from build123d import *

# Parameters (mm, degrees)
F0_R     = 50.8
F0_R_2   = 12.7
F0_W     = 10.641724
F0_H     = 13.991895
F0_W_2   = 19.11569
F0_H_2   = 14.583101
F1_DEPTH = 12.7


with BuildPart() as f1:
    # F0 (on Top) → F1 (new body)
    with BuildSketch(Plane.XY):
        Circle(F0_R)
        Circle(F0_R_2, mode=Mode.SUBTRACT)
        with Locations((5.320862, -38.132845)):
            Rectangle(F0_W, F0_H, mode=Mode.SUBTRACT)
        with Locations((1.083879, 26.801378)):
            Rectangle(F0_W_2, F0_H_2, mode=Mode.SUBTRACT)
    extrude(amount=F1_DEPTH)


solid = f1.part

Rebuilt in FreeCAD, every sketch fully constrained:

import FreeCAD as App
import Part
import Sketcher

V = App.Vector
Q = App.Units.Quantity


def add_polygon(sketch, points):
    """Adds a closed chain of lines whose ends are joined by coincident constraints."""
    first, n = sketch.GeometryCount, len(points)
    for a, b in zip(points, points[1:] + points[:1]):
        sketch.addGeometry(Part.LineSegment(App.Vector(*a, 0), App.Vector(*b, 0)), False)
    for i in range(n):
        sketch.addConstraint(Sketcher.Constraint("Coincident", first + i, 2, first + (i + 1) % n, 1))

doc = App.newDocument("Part")
params = doc.addObject("Spreadsheet::Sheet", "Params")
for row, (alias, value) in enumerate([
    ("sketch1_diameter", "4 in"),
    ("sketch1_diameter2", "1 in"),
    ("pad1_length", "0.5 in"),
], start=1):
    params.set(f"A{row}", alias)
    params.set(f"B{row}", "=" + value)
    params.setAlias(f"B{row}", alias)

body = doc.addObject("PartDesign::Body", "Body")

# Sketch on XY plane
sketch1 = body.newObject("Sketcher::SketchObject", "Sketch")
sketch1.AttachmentSupport = (doc.getObject("XY_Plane"), [""])
sketch1.MapMode = "FlatFace"
sketch1.addGeometry(Part.Circle(V(0, 0, 0), V(0, 0, 1), 51), False)  # 0
add_polygon(sketch1, [(11, -45), (0, -45), (0, -31), (11, -31)])  # lines 1-4
sketch1.addGeometry(Part.Circle(V(0, 0, 0), V(0, 0, 1), 13), False)  # 5
add_polygon(sketch1, [(11, 20), (-8, 20), (-8, 34), (11, 34)])  # lines 6-9
sketch1.addConstraint(Sketcher.Constraint("Horizontal", 1))
sketch1.addConstraint(Sketcher.Constraint("Vertical", 2))
sketch1.addConstraint(Sketcher.Constraint("Horizontal", 3))
sketch1.addConstraint(Sketcher.Constraint("Vertical", 4))
sketch1.addConstraint(Sketcher.Constraint("Horizontal", 6))
sketch1.addConstraint(Sketcher.Constraint("Vertical", 7))
sketch1.addConstraint(Sketcher.Constraint("Horizontal", 8))
sketch1.addConstraint(Sketcher.Constraint("Vertical", 9))
sketch1.addConstraint(Sketcher.Constraint("Coincident", 0, 3, -1, 1))
sketch1.addConstraint(Sketcher.Constraint("Coincident", 5, 3, -1, 1))
sketch1.addConstraint(Sketcher.Constraint("PointOnObject", 1, 2, -2))
sketch1.addConstraint(Sketcher.Constraint("Vertical", 4, 2, 8, 2))
sketch1.addConstraint(Sketcher.Constraint("Diameter", 0, Q("4 in")))
sketch1.addConstraint(Sketcher.Constraint("Diameter", 5, Q("1 in")))
sketch1.addConstraint(Sketcher.Constraint("DistanceY", 7, 1, 7, 2, Q("14.583101 mm")))
sketch1.addConstraint(Sketcher.Constraint("DistanceX", 6, 2, 6, 1, Q("19.11569 mm")))
sketch1.addConstraint(Sketcher.Constraint("DistanceX", 1, 2, 1, 1, Q("10.641724 mm")))
sketch1.addConstraint(Sketcher.Constraint("DistanceY", 2, 1, 2, 2, Q("13.991895 mm")))
sketch1.addConstraint(Sketcher.Constraint("DistanceY", -1, 1, 7, 2, Q("34.092928 mm")))
sketch1.addConstraint(Sketcher.Constraint("DistanceY", 1, 2, 6, 2, Q("64.63862 mm")))
sketch1.setExpression("Constraints[20]", "Params.sketch1_diameter")
sketch1.setExpression("Constraints[21]", "Params.sketch1_diameter2")
pad1 = body.newObject("PartDesign::Pad", "Pad")
pad1.Profile = sketch1
pad1.setExpression("Length", "Params.pad1_length")

doc.recompute()
